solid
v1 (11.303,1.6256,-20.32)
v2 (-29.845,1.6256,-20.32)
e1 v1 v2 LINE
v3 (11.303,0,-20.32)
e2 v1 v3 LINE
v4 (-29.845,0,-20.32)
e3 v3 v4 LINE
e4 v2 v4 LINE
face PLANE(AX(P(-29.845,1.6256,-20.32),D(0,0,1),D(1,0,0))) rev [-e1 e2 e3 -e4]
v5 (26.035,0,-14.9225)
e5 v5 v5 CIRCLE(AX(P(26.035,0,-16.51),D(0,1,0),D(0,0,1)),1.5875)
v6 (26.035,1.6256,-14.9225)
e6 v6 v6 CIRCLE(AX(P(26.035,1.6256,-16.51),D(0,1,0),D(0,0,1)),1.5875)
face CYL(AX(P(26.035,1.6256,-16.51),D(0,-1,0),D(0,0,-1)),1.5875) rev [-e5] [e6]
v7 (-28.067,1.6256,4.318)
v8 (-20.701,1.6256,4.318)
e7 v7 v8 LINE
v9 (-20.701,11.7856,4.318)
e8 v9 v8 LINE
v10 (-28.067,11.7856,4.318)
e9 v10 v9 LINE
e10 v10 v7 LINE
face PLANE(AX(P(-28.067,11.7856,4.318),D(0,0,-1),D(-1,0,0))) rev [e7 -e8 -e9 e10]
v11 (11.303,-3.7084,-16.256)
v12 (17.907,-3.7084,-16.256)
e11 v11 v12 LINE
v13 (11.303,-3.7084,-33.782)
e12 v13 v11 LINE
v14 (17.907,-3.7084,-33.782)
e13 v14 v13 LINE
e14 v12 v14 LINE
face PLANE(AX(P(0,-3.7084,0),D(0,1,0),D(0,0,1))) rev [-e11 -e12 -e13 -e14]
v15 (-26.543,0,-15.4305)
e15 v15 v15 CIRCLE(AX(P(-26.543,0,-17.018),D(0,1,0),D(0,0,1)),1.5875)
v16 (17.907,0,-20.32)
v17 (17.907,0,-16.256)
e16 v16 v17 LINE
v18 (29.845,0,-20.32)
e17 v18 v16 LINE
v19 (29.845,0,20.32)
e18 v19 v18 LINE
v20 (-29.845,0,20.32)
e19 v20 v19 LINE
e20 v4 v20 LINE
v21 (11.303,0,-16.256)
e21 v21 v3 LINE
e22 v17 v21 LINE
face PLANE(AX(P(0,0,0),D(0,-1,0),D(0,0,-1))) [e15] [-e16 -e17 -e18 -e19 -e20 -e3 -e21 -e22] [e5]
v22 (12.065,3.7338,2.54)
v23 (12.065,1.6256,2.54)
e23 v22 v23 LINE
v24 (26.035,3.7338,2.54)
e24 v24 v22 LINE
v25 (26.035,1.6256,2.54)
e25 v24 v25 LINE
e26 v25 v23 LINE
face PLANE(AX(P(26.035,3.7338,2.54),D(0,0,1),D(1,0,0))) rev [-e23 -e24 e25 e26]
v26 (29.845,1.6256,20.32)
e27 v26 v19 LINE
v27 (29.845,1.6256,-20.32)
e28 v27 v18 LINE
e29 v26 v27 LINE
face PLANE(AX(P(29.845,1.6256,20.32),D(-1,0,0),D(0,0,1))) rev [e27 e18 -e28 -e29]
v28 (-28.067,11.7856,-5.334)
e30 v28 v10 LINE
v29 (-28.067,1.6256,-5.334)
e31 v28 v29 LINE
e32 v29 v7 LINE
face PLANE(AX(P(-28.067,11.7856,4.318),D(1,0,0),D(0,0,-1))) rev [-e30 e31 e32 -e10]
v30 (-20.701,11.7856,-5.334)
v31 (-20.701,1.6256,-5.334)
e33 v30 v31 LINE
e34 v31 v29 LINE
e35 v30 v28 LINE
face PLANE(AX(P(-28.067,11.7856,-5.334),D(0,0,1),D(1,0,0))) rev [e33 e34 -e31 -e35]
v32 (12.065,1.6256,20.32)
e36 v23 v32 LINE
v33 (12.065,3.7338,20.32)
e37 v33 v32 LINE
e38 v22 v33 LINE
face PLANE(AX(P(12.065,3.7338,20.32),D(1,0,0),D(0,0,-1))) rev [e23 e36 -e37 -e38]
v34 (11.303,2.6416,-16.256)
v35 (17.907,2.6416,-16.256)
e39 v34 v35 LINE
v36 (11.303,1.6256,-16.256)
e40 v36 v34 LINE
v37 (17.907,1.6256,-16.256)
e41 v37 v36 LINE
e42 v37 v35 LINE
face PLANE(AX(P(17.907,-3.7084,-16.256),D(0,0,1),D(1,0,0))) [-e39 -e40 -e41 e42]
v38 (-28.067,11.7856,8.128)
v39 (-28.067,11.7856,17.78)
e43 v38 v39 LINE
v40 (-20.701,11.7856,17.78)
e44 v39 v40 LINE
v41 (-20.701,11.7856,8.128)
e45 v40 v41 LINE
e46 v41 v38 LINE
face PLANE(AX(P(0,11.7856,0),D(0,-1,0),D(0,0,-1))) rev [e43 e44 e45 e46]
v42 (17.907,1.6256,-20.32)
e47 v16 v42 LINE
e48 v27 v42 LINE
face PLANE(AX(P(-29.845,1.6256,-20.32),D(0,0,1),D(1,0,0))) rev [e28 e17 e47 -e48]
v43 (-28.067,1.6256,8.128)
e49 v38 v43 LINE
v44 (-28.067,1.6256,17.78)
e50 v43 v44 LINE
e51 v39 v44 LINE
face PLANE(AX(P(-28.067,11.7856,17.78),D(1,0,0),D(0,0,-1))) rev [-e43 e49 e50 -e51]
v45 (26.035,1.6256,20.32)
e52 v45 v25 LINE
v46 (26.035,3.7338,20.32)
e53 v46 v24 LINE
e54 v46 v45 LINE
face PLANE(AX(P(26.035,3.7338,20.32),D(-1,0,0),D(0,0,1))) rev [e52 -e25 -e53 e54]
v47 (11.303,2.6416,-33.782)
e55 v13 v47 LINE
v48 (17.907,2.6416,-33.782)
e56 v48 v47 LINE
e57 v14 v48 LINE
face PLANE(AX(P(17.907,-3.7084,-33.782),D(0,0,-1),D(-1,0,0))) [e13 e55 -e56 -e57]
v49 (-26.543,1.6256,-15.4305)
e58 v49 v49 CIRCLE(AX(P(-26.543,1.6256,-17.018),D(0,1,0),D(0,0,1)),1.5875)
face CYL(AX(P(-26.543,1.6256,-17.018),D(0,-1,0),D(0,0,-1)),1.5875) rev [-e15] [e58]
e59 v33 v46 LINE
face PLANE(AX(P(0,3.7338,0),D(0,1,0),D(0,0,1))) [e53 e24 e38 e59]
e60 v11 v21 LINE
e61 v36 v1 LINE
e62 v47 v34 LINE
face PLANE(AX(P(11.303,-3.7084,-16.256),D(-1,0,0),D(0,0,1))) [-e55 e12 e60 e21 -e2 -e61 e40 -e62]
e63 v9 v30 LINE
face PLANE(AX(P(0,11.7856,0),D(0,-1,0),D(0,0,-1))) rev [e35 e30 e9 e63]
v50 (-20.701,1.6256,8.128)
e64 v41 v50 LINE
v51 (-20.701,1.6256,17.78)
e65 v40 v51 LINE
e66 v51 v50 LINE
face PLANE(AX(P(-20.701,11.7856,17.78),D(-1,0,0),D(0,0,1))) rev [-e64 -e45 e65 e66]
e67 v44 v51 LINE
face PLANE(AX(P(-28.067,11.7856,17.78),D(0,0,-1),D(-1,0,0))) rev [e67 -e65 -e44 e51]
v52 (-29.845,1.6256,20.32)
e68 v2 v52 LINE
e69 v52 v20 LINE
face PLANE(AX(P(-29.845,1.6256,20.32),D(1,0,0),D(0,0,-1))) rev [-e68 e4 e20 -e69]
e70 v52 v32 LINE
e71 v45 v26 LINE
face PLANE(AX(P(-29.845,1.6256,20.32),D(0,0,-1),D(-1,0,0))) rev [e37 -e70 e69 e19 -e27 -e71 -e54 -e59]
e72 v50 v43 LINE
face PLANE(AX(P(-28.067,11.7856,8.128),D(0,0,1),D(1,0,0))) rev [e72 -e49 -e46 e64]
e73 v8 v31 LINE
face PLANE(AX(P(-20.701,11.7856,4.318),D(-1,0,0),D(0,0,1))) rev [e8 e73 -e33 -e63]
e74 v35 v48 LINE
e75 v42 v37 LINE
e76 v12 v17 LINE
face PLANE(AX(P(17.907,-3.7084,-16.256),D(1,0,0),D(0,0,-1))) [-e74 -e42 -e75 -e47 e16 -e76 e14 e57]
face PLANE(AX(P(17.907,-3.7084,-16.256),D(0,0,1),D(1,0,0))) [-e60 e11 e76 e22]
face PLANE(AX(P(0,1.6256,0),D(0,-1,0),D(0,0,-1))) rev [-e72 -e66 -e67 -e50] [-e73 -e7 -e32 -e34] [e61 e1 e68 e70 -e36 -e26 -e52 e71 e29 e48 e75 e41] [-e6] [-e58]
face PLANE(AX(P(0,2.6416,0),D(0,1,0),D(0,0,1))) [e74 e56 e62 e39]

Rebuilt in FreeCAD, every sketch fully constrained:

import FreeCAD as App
import Part
import Sketcher

V = App.Vector
Q = App.Units.Quantity


def add_polygon(sketch, points):
    """Adds a closed chain of lines whose ends are joined by coincident constraints."""
    first, n = sketch.GeometryCount, len(points)
    for a, b in zip(points, points[1:] + points[:1]):
        sketch.addGeometry(Part.LineSegment(App.Vector(*a, 0), App.Vector(*b, 0)), False)
    for i in range(n):
        sketch.addConstraint(Sketcher.Constraint("Coincident", first + i, 2, first + (i + 1) % n, 1))

doc = App.newDocument("Part")
body = doc.addObject("PartDesign::Body", "Body")

sketch1 = doc.addObject("Sketcher::SketchObject", "Sketch")
body.addObject(sketch1)
sketch1.AttachmentSupport = (doc.XZ_Plane, [""])
sketch1.MapMode = "FlatFace"
add_polygon(sketch1, [(-29.845, -20.32), (-29.845, 20.32), (29.845, 20.32), (29.845, -20.32)])
sketch1.addGeometry(Part.Circle(V(26.035, -16.51, 0), V(0, 0, 1), 1.5875), False)
sketch1.addGeometry(Part.Circle(V(-26.543, -17.018, 0), V(0, 0, 1), 1.5875), False)
sketch1.addConstraint(Sketcher.Constraint("Vertical", 0))
sketch1.addConstraint(Sketcher.Constraint("Horizontal", 1))
sketch1.addConstraint(Sketcher.Constraint("Vertical", 2))
sketch1.addConstraint(Sketcher.Constraint("Horizontal", 3))
sketch1.addConstraint(Sketcher.Constraint("Equal", 4, 5))
sketch1.addConstraint(Sketcher.Constraint("Symmetric", 0, 2, 2, 2, -1, 1))
sketch1.addConstraint(Sketcher.Constraint("Diameter", 4, Q("0.125 in")))
sketch1.addConstraint(Sketcher.Constraint("DistanceY", 0, 1, 0, 2, Q("1.6 in")))
sketch1.addConstraint(Sketcher.Constraint("DistanceX", 1, 1, 1, 2, Q("2.35 in")))
sketch1.addConstraint(Sketcher.Constraint("DistanceX", 0, 2, 4, 3, Q("2.2 in")))
sketch1.addConstraint(Sketcher.Constraint("DistanceY", 4, 3, -1, 1, Q("0.65 in")))
sketch1.addConstraint(Sketcher.Constraint("DistanceY", 5, 3, -1, 1, Q("0.67 in")))
sketch1.addConstraint(Sketcher.Constraint("DistanceX", 5, 3, 4, 3, Q("2.07 in")))
pad1 = doc.addObject("PartDesign::Pad", "Pad")
body.addObject(pad1)
pad1.Profile = sketch1
pad1.Length = Q("0.064 in")
pad1.Reversed = True

sketch2 = doc.addObject("Sketcher::SketchObject", "Sketch001")
body.addObject(sketch2)
sketch2.AttachmentSupport = (doc.XZ_Plane, [""])
sketch2.MapMode = "FlatFace"
sketch2.AttachmentOffset = App.Placement(V(0, 0, -0.064 * 25.4), App.Rotation())
add_polygon(sketch2, [(12.065, 2.54), (12.065, 20.32), (26.035, 20.32), (26.035, 2.54)])
sketch2.addConstraint(Sketcher.Constraint("Vertical", 0))
sketch2.addConstraint(Sketcher.Constraint("Horizontal", 1))
sketch2.addConstraint(Sketcher.Constraint("Vertical", 2))
sketch2.addConstraint(Sketcher.Constraint("Horizontal", 3))
sketch2.addConstraint(Sketcher.Constraint("DistanceY", 0, 1, 0, 2, Q("0.7 in")))
sketch2.addConstraint(Sketcher.Constraint("DistanceX", 1, 1, 1, 2, Q("0.55 in")))
sketch2.addConstraint(Sketcher.Constraint("DistanceY", -1, 1, 0, 2, Q("0.8 in")))
sketch2.addConstraint(Sketcher.Constraint("DistanceX", -1, 1, 0, 2, Q("0.475 in")))
pad2 = doc.addObject("PartDesign::Pad", "Pad001")
body.addObject(pad2)
pad2.Profile = sketch2
pad2.Length = Q("0.083 in")
pad2.Reversed = True

sketch3 = doc.addObject("Sketcher::SketchObject", "Sketch002")
body.addObject(sketch3)
sketch3.AttachmentSupport = (doc.XZ_Plane, [""])
sketch3.MapMode = "FlatFace"
sketch3.AttachmentOffset = App.Placement(V(0, 0, -0.104 * 25.4), App.Rotation())
add_polygon(sketch3, [(11.303, -33.782), (11.303, -16.256), (17.907, -16.256), (17.907, -33.782)])
sketch3.addConstraint(Sketcher.Constraint("Vertical", 0))
sketch3.addConstraint(Sketcher.Constraint("Horizontal", 1))
sketch3.addConstraint(Sketcher.Constraint("Vertical", 2))
sketch3.addConstraint(Sketcher.Constraint("Horizontal", 3))
sketch3.addConstraint(Sketcher.Constraint("DistanceX", 1, 1, 1, 2, Q("0.26 in")))
sketch3.addConstraint(Sketcher.Constraint("DistanceY", 0, 1, 0, 2, Q("0.69 in")))
sketch3.addConstraint(Sketcher.Constraint("DistanceY", 0, 2, -1, 1, Q("0.64 in")))
sketch3.addConstraint(Sketcher.Constraint("DistanceX", -1, 1, 0, 2, Q("0.445 in")))
pad3 = doc.addObject("PartDesign::Pad", "Pad002")
body.addObject(pad3)
pad3.Profile = sketch3
pad3.Length = Q("0.25 in")

sketch4 = doc.addObject("Sketcher::SketchObject", "Sketch003")
body.addObject(sketch4)
sketch4.AttachmentSupport = (doc.XZ_Plane, [""])
sketch4.MapMode = "FlatFace"
sketch4.AttachmentOffset = App.Placement(V(0, 0, -0.064 * 25.4), App.Rotation())
add_polygon(sketch4, [(-28.067, 8.128), (-28.067, 17.78), (-20.701, 17.78), (-20.701, 8.128)])
add_polygon(sketch4, [(-28.067, -5.334), (-28.067, 4.318), (-20.701, 4.318), (-20.701, -5.334)])
sketch4.addConstraint(Sketcher.Constraint("Vertical", 0))
sketch4.addConstraint(Sketcher.Constraint("Horizontal", 1))
sketch4.addConstraint(Sketcher.Constraint("Vertical", 2))
sketch4.addConstraint(Sketcher.Constraint("Horizontal", 3))
sketch4.addConstraint(Sketcher.Constraint("Vertical", 4))
sketch4.addConstraint(Sketcher.Constraint("Horizontal", 5))
sketch4.addConstraint(Sketcher.Constraint("Vertical", 6))
sketch4.addConstraint(Sketcher.Constraint("Horizontal", 7))
sketch4.addConstraint(Sketcher.Constraint("Vertical", 3, 2, 4, 2))
sketch4.addConstraint(Sketcher.Constraint("Vertical", 2, 2, 5, 2))
sketch4.addConstraint(Sketcher.Constraint("Equal", 2, 4))
sketch4.addConstraint(Sketcher.Constraint("DistanceX", 1, 1, 1, 2, Q("0.29 in")))
sketch4.addConstraint(Sketcher.Constraint("DistanceY", 0, 1, 0, 2, Q("0.38 in")))
sketch4.addConstraint(Sketcher.Constraint("DistanceY", -1, 1, 0, 2, Q("0.7 in")))
sketch4.addConstraint(Sketcher.Constraint("DistanceY", -1, 1, 4, 2, Q("0.17 in")))
sketch4.addConstraint(Sketcher.Constraint("DistanceX", 0, 2, -1, 1, Q("1.105 in")))
pad4 = doc.addObject("PartDesign::Pad", "Pad003")
body.addObject(pad4)
pad4.Profile = sketch4
pad4.Length = Q("0.4 in")
pad4.Reversed = True

doc.recompute()
